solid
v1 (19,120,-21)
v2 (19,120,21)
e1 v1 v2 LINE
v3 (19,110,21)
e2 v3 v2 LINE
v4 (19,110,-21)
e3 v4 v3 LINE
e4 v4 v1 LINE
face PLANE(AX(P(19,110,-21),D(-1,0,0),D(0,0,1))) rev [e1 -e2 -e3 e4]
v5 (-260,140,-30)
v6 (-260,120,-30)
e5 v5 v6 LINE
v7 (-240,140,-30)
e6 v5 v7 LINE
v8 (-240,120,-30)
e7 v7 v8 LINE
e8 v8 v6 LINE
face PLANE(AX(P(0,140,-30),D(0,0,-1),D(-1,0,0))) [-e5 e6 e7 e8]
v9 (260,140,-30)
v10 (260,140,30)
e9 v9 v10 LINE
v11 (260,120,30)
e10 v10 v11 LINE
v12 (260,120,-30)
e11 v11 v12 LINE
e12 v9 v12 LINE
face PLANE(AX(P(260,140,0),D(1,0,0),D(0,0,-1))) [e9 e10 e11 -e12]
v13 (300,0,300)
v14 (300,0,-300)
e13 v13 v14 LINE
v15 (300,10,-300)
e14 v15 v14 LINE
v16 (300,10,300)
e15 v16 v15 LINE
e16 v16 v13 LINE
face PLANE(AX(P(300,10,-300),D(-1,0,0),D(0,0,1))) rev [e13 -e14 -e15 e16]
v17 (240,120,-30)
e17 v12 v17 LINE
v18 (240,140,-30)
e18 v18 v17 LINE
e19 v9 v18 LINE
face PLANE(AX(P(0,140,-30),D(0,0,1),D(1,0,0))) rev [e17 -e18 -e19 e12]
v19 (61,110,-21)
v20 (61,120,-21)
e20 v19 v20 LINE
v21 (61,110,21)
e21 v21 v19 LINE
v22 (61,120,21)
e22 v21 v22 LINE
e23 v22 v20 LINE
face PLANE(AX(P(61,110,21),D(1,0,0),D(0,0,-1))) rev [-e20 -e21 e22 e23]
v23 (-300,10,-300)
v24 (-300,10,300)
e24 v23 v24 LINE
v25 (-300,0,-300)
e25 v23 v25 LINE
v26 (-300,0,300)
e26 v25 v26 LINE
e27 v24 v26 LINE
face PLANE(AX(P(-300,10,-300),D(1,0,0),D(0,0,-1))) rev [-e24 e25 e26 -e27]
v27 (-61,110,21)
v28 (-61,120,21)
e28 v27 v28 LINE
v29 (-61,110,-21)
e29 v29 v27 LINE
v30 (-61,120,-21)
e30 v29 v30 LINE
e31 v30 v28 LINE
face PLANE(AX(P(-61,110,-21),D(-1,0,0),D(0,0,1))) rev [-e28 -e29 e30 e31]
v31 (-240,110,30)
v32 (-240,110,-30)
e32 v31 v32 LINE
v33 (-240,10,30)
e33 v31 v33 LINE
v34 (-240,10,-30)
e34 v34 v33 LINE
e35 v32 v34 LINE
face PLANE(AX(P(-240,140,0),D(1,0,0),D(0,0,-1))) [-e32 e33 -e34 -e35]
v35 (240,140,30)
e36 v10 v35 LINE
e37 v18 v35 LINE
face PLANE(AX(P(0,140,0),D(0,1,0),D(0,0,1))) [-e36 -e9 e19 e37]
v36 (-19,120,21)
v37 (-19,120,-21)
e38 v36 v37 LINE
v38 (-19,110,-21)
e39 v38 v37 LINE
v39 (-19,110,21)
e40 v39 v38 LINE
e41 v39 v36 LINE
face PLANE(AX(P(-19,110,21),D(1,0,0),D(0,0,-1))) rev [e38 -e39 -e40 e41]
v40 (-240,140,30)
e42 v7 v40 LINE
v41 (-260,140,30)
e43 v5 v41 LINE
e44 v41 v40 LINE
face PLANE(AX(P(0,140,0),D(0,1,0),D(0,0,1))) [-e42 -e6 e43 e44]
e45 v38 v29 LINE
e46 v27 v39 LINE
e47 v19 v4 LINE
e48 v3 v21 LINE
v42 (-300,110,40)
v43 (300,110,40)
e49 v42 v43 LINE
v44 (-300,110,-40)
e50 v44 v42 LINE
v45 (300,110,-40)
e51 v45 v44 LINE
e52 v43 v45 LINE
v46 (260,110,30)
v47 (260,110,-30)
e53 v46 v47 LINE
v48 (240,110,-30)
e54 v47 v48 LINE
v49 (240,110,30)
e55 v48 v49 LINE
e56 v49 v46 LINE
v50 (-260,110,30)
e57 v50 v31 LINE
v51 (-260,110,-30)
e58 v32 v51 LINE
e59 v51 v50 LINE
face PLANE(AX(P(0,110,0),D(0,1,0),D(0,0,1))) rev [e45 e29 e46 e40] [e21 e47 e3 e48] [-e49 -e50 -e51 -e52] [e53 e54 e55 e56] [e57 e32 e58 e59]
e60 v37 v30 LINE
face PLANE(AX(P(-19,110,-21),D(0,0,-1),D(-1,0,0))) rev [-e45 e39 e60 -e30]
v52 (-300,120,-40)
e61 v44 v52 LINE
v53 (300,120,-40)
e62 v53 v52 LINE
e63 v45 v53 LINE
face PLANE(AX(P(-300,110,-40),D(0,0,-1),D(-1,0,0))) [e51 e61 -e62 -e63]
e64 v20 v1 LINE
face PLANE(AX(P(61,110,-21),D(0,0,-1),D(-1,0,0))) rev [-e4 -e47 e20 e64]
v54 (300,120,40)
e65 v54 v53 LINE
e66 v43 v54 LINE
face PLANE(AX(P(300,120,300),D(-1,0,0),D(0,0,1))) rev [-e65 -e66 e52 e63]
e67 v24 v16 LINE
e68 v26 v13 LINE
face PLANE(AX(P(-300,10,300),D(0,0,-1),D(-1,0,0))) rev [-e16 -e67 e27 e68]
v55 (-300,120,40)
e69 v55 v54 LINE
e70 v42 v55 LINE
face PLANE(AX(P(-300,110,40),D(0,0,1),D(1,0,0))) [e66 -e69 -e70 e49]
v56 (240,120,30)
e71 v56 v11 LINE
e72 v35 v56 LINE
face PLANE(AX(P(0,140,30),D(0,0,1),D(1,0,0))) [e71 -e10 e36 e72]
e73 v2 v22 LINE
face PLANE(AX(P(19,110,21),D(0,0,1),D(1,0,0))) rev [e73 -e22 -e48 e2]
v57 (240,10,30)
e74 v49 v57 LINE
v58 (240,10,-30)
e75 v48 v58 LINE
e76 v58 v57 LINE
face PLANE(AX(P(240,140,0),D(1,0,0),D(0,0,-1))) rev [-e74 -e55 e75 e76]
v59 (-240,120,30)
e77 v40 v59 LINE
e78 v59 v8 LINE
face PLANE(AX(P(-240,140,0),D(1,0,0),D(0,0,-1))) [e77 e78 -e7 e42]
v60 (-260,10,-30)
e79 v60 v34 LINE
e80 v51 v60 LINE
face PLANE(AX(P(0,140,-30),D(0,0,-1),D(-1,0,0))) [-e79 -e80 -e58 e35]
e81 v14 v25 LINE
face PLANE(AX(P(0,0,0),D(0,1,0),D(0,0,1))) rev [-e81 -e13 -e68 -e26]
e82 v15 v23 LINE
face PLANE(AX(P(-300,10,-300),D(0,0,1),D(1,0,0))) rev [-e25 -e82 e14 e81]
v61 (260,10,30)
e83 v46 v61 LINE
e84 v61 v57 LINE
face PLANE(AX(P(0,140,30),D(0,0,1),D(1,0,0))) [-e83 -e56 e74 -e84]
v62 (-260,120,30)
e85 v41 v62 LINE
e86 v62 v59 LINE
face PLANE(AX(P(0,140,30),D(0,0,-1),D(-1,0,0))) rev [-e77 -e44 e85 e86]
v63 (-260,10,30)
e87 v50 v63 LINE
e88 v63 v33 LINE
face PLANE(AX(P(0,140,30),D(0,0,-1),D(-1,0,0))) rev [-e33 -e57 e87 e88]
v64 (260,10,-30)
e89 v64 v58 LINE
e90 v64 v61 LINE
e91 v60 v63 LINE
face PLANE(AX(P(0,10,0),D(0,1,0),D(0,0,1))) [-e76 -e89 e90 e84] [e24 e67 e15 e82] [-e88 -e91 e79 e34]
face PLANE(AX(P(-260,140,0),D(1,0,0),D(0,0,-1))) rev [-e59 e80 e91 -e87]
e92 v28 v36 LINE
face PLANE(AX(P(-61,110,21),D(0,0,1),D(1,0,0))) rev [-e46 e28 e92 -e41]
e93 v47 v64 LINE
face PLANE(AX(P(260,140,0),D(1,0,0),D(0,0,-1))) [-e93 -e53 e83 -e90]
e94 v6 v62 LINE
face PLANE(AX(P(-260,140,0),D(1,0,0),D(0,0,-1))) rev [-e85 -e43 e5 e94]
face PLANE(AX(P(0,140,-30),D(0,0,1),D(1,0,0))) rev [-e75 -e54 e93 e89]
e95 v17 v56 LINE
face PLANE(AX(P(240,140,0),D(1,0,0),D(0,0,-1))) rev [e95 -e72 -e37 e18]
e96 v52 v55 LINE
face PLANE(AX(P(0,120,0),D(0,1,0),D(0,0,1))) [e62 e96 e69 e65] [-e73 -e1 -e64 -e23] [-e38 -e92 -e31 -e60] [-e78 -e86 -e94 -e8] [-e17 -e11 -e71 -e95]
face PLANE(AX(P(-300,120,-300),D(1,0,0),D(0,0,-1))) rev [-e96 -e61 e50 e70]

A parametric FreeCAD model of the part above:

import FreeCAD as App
import Part
import Sketcher


def add_polygon(sketch, points):
    """Adds a closed chain of lines whose ends are joined by coincident constraints."""
    first, n = sketch.GeometryCount, len(points)
    for a, b in zip(points, points[1:] + points[:1]):
        sketch.addGeometry(Part.LineSegment(App.Vector(*a, 0), App.Vector(*b, 0)), False)
    for i in range(n):
        sketch.addConstraint(Sketcher.Constraint("Coincident", first + i, 2, first + (i + 1) % n, 1))

doc = App.newDocument("Part")
body = doc.addObject("PartDesign::Body", "Body")

# Sketch on XZ plane
sketch1 = doc.addObject("Sketcher::SketchObject", "Sketch")
body.addObject(sketch1)
sketch1.AttachmentSupport = (doc.XZ_Plane, [""])
sketch1.MapMode = "FlatFace"
add_polygon(sketch1, [(-300, -300), (-300, 300), (300, 300), (300, -300)])  # lines 0-3
sketch1.addConstraint([
    Sketcher.Constraint("Vertical", 0),
    Sketcher.Constraint("Horizontal", 1),
    Sketcher.Constraint("Vertical", 2),
    Sketcher.Constraint("Horizontal", 3),
    Sketcher.Constraint("Symmetric", 0, 2, 2, 2, -1, 1),
    Sketcher.Constraint("Equal", 3, 0),
    Sketcher.Constraint("DistanceX", 1, 1, 1, 2, 600.0),
])
pad1 = doc.addObject("PartDesign::Pad", "Pad")
body.addObject(pad1)
pad1.Profile = sketch1
pad1.Length = 10
pad1.Reversed = True

# Sketch on XZ plane
sketch2 = doc.addObject("Sketcher::SketchObject", "Sketch001")
body.addObject(sketch2)
sketch2.AttachmentSupport = (doc.XZ_Plane, [""])
sketch2.MapMode = "FlatFace"
sketch2.AttachmentOffset = App.Placement(App.Vector(0, 0, -10), App.Rotation())
add_polygon(sketch2, [(-260, -30), (-260, 30), (-240, 30), (-240, -30)])  # lines 0-3
add_polygon(sketch2, [(240, -30), (240, 30), (260, 30), (260, -30)])  # lines 4-7
sketch2.addConstraint([
    Sketcher.Constraint("Vertical", 0),
    Sketcher.Constraint("Horizontal", 1),
    Sketcher.Constraint("Vertical", 2),
    Sketcher.Constraint("Horizontal", 3),
    Sketcher.Constraint("Vertical", 4),
    Sketcher.Constraint("Horizontal", 5),
    Sketcher.Constraint("Vertical", 6),
    Sketcher.Constraint("Horizontal", 7),
    Sketcher.Constraint("Symmetric", 2, 2, 4, 2, -1, 1),
    Sketcher.Constraint("Symmetric", 0, 2, 6, 2, -1, 1),
    Sketcher.Constraint("Horizontal", 1, 2, 4, 2),
    Sketcher.Constraint("DistanceX", 1, 1, 1, 2, 20.0),
    Sketcher.Constraint("DistanceY", 0, 1, 0, 2, 60.0),
    Sketcher.Constraint("DistanceX", 0, 2, -1, 1, 260.0),
])
pad2 = doc.addObject("PartDesign::Pad", "Pad001")
body.addObject(pad2)
pad2.Profile = sketch2
pad2.Length = 130
pad2.Reversed = True

# Sketch on XZ plane
sketch3 = doc.addObject("Sketcher::SketchObject", "Sketch002")
body.addObject(sketch3)
sketch3.AttachmentSupport = (doc.XZ_Plane, [""])
sketch3.MapMode = "FlatFace"
sketch3.AttachmentOffset = App.Placement(App.Vector(0, 0, -110), App.Rotation())
add_polygon(sketch3, [(-300, -300), (-300, 300), (300, 300), (300, -300)])  # lines 0-3
add_polygon(sketch3, [(-240, 30), (-260, 30), (-260, -30), (-240, -30)])  # lines 4-7
add_polygon(sketch3, [(260, 30), (240, 30), (240, -30), (260, -30)])  # lines 8-11
sketch3.addConstraint([
    Sketcher.Constraint("Vertical", 0),
    Sketcher.Constraint("Horizontal", 1),
    Sketcher.Constraint("Vertical", 2),
    Sketcher.Constraint("Horizontal", 3),
    Sketcher.Constraint("Horizontal", 4),
    Sketcher.Constraint("Vertical", 5),
    Sketcher.Constraint("Horizontal", 6),
    Sketcher.Constraint("Vertical", 7),
    Sketcher.Constraint("Horizontal", 8),
    Sketcher.Constraint("Vertical", 9),
    Sketcher.Constraint("Horizontal", 10),
    Sketcher.Constraint("Vertical", 11),
    Sketcher.Constraint("Symmetric", 0, 2, 2, 2, -1, 1),
    Sketcher.Constraint("Symmetric", 6, 2, 8, 2, -1, 1),
    Sketcher.Constraint("Symmetric", 4, 2, 10, 2, -1, 1),
    Sketcher.Constraint("Horizontal", 7, 2, 8, 2),
    Sketcher.Constraint("Equal", 3, 0),
    Sketcher.Constraint("DistanceX", 1, 1, 1, 2, 600.0),
    Sketcher.Constraint("DistanceX", 4, 2, 4, 1, 20.0),
    Sketcher.Constraint("DistanceY", 5, 2, 5, 1, 60.0),
    Sketcher.Constraint("DistanceX", 4, 2, -1, 1, 260.0),
])
pad3 = doc.addObject("PartDesign::Pad", "Pad002")
body.addObject(pad3)
pad3.Profile = sketch3
pad3.Length = 10
pad3.Reversed = True

# Sketch on XZ plane
sketch4 = doc.addObject("Sketcher::SketchObject", "Sketch003")
body.addObject(sketch4)
sketch4.AttachmentSupport = (doc.XZ_Plane, [""])
sketch4.MapMode = "FlatFace"
sketch4.AttachmentOffset = App.Placement(App.Vector(0, 0, -120), App.Rotation())
add_polygon(sketch4, [(-387, -387), (-387, 387), (387, 387), (387, -387)])  # lines 0-3
add_polygon(sketch4, [(300, 40), (-300, 40), (-300, -40), (300, -40)])  # lines 4-7
sketch4.addConstraint([
    Sketcher.Constraint("Vertical", 0),
    Sketcher.Constraint("Horizontal", 1),
    Sketcher.Constraint("Vertical", 2),
    Sketcher.Constraint("Horizontal", 3),
    Sketcher.Constraint("Horizontal", 4),
    Sketcher.Constraint("Vertical", 5),
    Sketcher.Constraint("Horizontal", 6),
    Sketcher.Constraint("Vertical", 7),
    Sketcher.Constraint("Symmetric", 0, 2, 2, 2, -1, 1),
    Sketcher.Constraint("Symmetric", 4, 2, 6, 2, -1, 1),
    Sketcher.Constraint("Equal", 3, 0),
    Sketcher.Constraint("DistanceX", 1, 1, 1, 2, 774.0),
    Sketcher.Constraint("DistanceX", 4, 2, 4, 1, 600.0),
    Sketcher.Constraint("DistanceY", 5, 2, 5, 1, 80.0),
])
pocket1 = doc.addObject("PartDesign::Pocket", "Pocket")
body.addObject(pocket1)
pocket1.Profile = sketch4
pocket1.Length = 10
pocket1.Reversed = True

# Sketch on XZ plane
sketch5 = doc.addObject("Sketcher::SketchObject", "Sketch004")
body.addObject(sketch5)
sketch5.AttachmentSupport = (doc.XZ_Plane, [""])
sketch5.MapMode = "FlatFace"
sketch5.AttachmentOffset = App.Placement(App.Vector(0, 0, -120), App.Rotation())
add_polygon(sketch5, [(-61, -21), (-61, 21), (-19, 21), (-19, -21)])  # lines 0-3
add_polygon(sketch5, [(19, -21), (19, 21), (61, 21), (61, -21)])  # lines 4-7
sketch5.addConstraint([
    Sketcher.Constraint("Vertical", 0),
    Sketcher.Constraint("Horizontal", 1),
    Sketcher.Constraint("Vertical", 2),
    Sketcher.Constraint("Horizontal", 3),
    Sketcher.Constraint("Vertical", 4),
    Sketcher.Constraint("Horizontal", 5),
    Sketcher.Constraint("Vertical", 6),
    Sketcher.Constraint("Horizontal", 7),
    Sketcher.Constraint("Symmetric", 2, 2, 4, 2, -1, 1),
    Sketcher.Constraint("Symmetric", 0, 2, 6, 2, -1, 1),
    Sketcher.Constraint("Horizontal", 1, 2, 4, 2),
    Sketcher.Constraint("Equal", 7, 0),
    Sketcher.Constraint("DistanceX", 1, 1, 1, 2, 42.0),
    Sketcher.Constraint("DistanceX", 0, 2, -1, 1, 61.0),
])
pocket2 = doc.addObject("PartDesign::Pocket", "Pocket001")
body.addObject(pocket2)
pocket2.Profile = sketch5
pocket2.Length = 10
pocket2.Reversed = True

doc.recompute()
